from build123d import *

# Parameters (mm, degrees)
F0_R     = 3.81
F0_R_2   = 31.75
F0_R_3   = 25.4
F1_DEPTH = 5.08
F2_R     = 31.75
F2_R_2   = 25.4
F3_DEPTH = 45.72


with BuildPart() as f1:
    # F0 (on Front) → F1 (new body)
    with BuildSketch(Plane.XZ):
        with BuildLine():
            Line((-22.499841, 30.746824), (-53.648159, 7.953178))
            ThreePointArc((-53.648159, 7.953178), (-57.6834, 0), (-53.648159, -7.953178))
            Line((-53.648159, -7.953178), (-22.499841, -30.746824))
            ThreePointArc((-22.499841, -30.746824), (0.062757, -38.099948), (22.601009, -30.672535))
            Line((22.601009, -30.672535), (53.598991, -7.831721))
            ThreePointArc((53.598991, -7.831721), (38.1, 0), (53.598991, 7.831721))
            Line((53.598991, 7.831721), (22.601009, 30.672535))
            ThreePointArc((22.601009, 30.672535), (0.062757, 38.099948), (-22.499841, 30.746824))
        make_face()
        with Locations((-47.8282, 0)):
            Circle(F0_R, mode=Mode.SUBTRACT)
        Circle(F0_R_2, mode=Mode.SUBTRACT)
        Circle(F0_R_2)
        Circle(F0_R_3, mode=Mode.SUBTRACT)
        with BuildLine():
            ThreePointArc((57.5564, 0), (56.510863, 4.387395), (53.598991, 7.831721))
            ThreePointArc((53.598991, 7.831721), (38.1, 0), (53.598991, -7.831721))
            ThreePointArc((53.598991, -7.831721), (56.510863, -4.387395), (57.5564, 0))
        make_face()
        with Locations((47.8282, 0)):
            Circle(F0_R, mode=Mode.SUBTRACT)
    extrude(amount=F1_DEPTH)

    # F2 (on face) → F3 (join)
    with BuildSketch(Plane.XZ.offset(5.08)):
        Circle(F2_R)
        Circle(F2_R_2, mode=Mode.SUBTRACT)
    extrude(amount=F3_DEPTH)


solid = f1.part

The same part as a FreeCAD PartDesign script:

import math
import FreeCAD as App
import Part
import Sketcher
from FreeCAD import Vector
Q = App.Units.Quantity

doc = App.newDocument("Part")
body = doc.addObject("PartDesign::Body", "Body")

# Sketch on XZ plane
sketch1 = doc.addObject("Sketcher::SketchObject", "Sketch")
body.addObject(sketch1)
sketch1.AttachmentSupport = (doc.XZ_Plane, [""])
sketch1.MapMode = "FlatFace"
sketch1.addGeometry([
    Part.LineSegment(Vector(-22.499841, 30.746824, 0), Vector(-53.648159, 7.953178, 0)),  # 0
    Part.ArcOfCircle(Part.Circle(Vector(-47.8282, 0, 0), Vector(0, 0, 1), 9.8552), math.radians(126.195835), math.radians(233.804165)),  # 1
    Part.LineSegment(Vector(-53.648159, -7.953178, 0), Vector(-22.499841, -30.746824, 0)),  # 2
    Part.ArcOfCircle(Part.Circle(Vector(0, 0.000003, 0), Vector(0, 0, 1), 38.100003), math.radians(-126.195832), math.radians(-53.615416)),  # 3
    Part.LineSegment(Vector(22.601009, -30.672535, 0), Vector(53.598991, -7.831721, 0)),  # 4
    Part.ArcOfCircle(Part.Circle(Vector(47.828197, 0.000001, 0), Vector(0, 0, 1), 9.728203), math.radians(-53.615403), math.radians(-0.000007)),  # 5
    Part.ArcOfCircle(Part.Circle(Vector(47.828197, -0.000001, 0), Vector(0, 0, 1), 9.728203), math.radians(0.000007), math.radians(53.615403)),  # 6
    Part.LineSegment(Vector(53.598991, 7.831721, 0), Vector(22.601009, 30.672535, 0)),  # 7
    Part.ArcOfCircle(Part.Circle(Vector(0, -0.000003, 0), Vector(0, 0, 1), 38.100003), math.radians(53.615416), math.radians(126.195832)),  # 8
    Part.Circle(Vector(-47.8282, 0, 0), Vector(0, 0, 1), 3.81),  # 9
    Part.Circle(Vector(0, 0, 0), Vector(0, 0, 1), 25.4),  # 10
    Part.Circle(Vector(47.8282, 0, 0), Vector(0, 0, 1), 3.81),  # 11
], False)
sketch1.addConstraint([
    Sketcher.Constraint("Tangent", 0, 2, 1, 1),
    Sketcher.Constraint("Tangent", 1, 2, 2, 1),
    Sketcher.Constraint("Tangent", 2, 2, 3, 1),
    Sketcher.Constraint("Tangent", 3, 2, 4, 1),
    Sketcher.Constraint("Tangent", 4, 2, 5, 1),
    Sketcher.Constraint("Tangent", 5, 2, 6, 1),
    Sketcher.Constraint("Tangent", 6, 2, 7, 1),
    Sketcher.Constraint("Tangent", 7, 2, 8, 1),
    Sketcher.Constraint("Tangent", 8, 2, 0, 1),
    Sketcher.Constraint("Coincident", 3, 3, -1, 1),
    Sketcher.Constraint("Coincident", 8, 3, -1, 1),
    Sketcher.Constraint("Coincident", 10, 3, -1, 1),
    Sketcher.Constraint("Coincident", 9, 3, 1, 3),
    Sketcher.Constraint("Coincident", 11, 3, 5, 3),
    Sketcher.Constraint("Equal", 5, 6),
    Sketcher.Constraint("Equal", 3, 8),
    Sketcher.Constraint("Equal", 9, 11),
    Sketcher.Constraint("Symmetric", 1, 3, 5, 3, -1, 1),
    Sketcher.Constraint("PointOnObject", 1, 3, -1),
    Sketcher.Constraint("PointOnObject", 5, 2, -1),
    Sketcher.Constraint("Diameter", 10, Q("2 in")),
    Sketcher.Constraint("Diameter", 9, Q("0.3 in")),
    Sketcher.Constraint("Radius", 3, Q("1.5000001 in")),
    Sketcher.Constraint("Radius", 1, Q("0.388 in")),
    Sketcher.Constraint("Radius", 5, Q("0.3830001 in")),
    Sketcher.Constraint("DistanceX", 1, 3, -1, 1, Q("1.883 in")),
])
pad1 = doc.addObject("PartDesign::Pad", "Pad")
body.addObject(pad1)
pad1.Profile = sketch1
pad1.Length = Q("0.2 in")

# Sketch on XZ plane
sketch2 = doc.addObject("Sketcher::SketchObject", "Sketch001")
body.addObject(sketch2)
sketch2.AttachmentSupport = (doc.XZ_Plane, [""])
sketch2.MapMode = "FlatFace"
sketch2.AttachmentOffset = App.Placement(Vector(0, 0, 0.2 * 25.4), App.Rotation())
sketch2.addGeometry([
    Part.Circle(Vector(0, 0, 0), Vector(0, 0, 1), 31.75),
    Part.Circle(Vector(0, 0, 0), Vector(0, 0, 1), 25.4),
], False)
sketch2.addConstraint([
    Sketcher.Constraint("Coincident", 0, 3, -1, 1),
    Sketcher.Constraint("Coincident", 1, 3, -1, 1),
    Sketcher.Constraint("Diameter", 1, Q("2 in")),
    Sketcher.Constraint("Diameter", 0, Q("2.5 in")),
])
pad2 = doc.addObject("PartDesign::Pad", "Pad001")
body.addObject(pad2)
pad2.Profile = sketch2
pad2.Length = Q("1.8 in")

doc.recompute()
